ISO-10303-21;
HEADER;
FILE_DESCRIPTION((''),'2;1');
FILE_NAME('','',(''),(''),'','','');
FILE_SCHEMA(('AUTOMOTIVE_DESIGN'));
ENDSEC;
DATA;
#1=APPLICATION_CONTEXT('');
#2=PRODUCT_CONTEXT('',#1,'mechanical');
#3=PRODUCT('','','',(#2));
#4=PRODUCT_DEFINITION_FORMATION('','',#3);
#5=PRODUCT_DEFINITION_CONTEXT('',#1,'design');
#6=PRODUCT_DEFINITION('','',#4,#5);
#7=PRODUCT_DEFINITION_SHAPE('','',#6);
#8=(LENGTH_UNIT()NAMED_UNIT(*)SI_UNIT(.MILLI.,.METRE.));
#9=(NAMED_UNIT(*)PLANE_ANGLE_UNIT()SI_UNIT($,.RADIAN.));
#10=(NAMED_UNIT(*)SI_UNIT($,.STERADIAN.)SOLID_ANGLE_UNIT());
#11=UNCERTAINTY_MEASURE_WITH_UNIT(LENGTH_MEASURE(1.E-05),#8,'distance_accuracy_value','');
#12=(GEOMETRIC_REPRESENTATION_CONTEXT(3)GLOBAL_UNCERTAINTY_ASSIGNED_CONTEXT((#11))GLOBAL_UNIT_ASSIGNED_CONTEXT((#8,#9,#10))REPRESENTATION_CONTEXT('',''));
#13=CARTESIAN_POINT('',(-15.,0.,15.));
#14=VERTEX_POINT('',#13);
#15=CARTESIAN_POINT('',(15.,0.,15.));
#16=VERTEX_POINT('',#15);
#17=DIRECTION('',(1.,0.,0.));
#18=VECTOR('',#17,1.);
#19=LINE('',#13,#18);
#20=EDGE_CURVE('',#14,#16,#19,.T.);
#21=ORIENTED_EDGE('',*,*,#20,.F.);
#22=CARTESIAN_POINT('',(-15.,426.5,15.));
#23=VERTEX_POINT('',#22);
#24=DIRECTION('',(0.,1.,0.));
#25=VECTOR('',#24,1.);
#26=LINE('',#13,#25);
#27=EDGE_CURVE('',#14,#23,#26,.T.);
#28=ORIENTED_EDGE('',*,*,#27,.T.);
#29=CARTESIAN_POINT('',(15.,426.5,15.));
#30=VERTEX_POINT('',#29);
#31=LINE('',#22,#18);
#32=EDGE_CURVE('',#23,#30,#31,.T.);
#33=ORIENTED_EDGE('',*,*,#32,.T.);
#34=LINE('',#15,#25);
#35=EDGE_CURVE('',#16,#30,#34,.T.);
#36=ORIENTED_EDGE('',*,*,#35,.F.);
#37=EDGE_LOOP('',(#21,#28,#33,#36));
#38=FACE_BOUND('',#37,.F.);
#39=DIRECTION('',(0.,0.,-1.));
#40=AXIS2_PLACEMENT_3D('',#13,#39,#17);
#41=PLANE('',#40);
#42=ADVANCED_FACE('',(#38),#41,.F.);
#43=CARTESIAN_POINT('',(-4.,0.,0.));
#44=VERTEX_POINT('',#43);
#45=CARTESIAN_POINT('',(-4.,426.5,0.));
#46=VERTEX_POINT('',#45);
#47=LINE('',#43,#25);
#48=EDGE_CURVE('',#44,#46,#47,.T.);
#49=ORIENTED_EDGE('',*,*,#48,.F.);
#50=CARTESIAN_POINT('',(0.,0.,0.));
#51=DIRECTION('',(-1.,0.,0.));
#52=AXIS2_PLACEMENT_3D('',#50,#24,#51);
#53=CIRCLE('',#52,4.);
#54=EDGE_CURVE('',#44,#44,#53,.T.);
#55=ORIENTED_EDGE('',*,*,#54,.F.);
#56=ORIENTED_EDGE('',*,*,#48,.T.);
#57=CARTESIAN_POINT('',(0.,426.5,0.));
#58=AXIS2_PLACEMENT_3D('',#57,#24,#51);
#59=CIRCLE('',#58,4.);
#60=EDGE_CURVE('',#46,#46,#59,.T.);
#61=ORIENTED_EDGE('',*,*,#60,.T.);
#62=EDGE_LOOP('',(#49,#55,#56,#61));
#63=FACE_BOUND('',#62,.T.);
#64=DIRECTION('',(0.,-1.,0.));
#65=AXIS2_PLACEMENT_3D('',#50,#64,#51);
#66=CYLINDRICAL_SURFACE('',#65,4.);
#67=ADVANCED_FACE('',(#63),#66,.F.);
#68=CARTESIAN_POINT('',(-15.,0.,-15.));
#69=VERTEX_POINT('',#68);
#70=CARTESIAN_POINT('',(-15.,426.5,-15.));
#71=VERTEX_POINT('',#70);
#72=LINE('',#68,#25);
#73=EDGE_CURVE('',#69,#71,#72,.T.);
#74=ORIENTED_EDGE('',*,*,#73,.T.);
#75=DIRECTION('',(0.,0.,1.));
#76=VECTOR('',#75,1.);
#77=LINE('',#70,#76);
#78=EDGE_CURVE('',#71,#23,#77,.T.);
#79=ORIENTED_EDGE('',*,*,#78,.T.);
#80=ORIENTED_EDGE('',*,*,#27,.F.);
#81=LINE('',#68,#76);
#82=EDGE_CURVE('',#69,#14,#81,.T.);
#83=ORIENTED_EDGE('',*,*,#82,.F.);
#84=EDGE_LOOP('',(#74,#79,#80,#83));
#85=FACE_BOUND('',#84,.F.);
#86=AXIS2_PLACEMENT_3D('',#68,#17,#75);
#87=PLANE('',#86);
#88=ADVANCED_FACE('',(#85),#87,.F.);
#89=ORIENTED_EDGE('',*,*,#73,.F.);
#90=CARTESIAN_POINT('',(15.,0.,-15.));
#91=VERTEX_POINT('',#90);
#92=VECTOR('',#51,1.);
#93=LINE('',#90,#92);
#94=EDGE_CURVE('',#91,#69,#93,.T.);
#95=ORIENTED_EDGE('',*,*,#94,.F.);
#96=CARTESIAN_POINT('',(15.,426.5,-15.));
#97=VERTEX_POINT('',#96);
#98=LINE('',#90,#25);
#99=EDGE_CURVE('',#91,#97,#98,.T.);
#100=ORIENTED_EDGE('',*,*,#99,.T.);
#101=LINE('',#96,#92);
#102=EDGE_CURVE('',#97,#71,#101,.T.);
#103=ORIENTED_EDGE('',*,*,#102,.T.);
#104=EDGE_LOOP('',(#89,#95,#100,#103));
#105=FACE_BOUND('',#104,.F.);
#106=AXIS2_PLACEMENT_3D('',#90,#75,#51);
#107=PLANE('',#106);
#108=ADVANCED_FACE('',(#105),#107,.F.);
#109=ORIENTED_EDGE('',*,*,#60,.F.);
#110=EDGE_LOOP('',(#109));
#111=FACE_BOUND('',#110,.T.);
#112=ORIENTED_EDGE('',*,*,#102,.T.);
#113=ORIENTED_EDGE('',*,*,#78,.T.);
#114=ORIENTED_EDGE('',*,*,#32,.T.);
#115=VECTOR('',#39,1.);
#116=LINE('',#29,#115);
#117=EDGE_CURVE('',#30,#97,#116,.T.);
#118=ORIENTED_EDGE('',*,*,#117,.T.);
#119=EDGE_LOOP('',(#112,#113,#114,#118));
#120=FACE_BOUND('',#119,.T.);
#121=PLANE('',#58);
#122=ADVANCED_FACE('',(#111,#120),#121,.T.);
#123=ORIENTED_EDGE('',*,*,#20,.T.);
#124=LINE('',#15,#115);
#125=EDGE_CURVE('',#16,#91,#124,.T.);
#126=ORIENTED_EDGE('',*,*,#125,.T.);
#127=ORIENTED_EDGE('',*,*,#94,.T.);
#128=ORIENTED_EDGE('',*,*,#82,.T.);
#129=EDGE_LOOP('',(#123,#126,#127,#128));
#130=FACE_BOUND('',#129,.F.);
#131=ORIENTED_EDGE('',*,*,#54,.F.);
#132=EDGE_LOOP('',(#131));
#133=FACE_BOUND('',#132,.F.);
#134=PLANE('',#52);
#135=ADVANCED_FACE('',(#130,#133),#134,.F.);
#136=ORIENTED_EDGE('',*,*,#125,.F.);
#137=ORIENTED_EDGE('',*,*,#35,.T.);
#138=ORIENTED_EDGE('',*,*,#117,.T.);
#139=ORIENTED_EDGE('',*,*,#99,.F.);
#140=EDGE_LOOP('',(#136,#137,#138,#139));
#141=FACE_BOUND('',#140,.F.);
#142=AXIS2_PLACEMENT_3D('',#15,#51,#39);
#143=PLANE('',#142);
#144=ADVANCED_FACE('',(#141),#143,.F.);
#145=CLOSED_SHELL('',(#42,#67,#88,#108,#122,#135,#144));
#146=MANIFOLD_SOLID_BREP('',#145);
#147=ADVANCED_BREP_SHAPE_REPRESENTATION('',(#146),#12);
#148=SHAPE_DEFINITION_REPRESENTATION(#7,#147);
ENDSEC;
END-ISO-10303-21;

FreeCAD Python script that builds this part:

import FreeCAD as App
import Part
import Sketcher


def add_polygon(sketch, points):
    """Adds a closed chain of lines whose ends are joined by coincident constraints."""
    first, n = sketch.GeometryCount, len(points)
    for a, b in zip(points, points[1:] + points[:1]):
        sketch.addGeometry(Part.LineSegment(App.Vector(*a, 0), App.Vector(*b, 0)), False)
    for i in range(n):
        sketch.addConstraint(Sketcher.Constraint("Coincident", first + i, 2, first + (i + 1) % n, 1))

doc = App.newDocument("Part")
body = doc.addObject("PartDesign::Body", "Body")

# Sketch on XZ plane
sketch1 = doc.addObject("Sketcher::SketchObject", "Sketch")
body.addObject(sketch1)
sketch1.AttachmentSupport = (doc.XZ_Plane, [""])
sketch1.MapMode = "FlatFace"
add_polygon(sketch1, [(-15, -15), (-15, 15), (15, 15), (15, -15)])  # lines 0-3
sketch1.addGeometry(Part.Circle(App.Vector(0, 0, 0), App.Vector(0, 0, 1), 4), False)  # 4
sketch1.addConstraint([
    Sketcher.Constraint("Vertical", 0),
    Sketcher.Constraint("Horizontal", 1),
    Sketcher.Constraint("Vertical", 2),
    Sketcher.Constraint("Horizontal", 3),
    Sketcher.Constraint("Coincident", 4, 3, -1, 1),
    Sketcher.Constraint("Symmetric", 0, 2, 2, 2, -1, 1),
    Sketcher.Constraint("Equal", 3, 0),
    Sketcher.Constraint("Diameter", 4, 8.0),
    Sketcher.Constraint("DistanceX", 1, 1, 1, 2, 30.0),
])
pad1 = doc.addObject("PartDesign::Pad", "Pad")
body.addObject(pad1)
pad1.Profile = sketch1
pad1.Length = 426.5
pad1.Reversed = True

doc.recompute()
